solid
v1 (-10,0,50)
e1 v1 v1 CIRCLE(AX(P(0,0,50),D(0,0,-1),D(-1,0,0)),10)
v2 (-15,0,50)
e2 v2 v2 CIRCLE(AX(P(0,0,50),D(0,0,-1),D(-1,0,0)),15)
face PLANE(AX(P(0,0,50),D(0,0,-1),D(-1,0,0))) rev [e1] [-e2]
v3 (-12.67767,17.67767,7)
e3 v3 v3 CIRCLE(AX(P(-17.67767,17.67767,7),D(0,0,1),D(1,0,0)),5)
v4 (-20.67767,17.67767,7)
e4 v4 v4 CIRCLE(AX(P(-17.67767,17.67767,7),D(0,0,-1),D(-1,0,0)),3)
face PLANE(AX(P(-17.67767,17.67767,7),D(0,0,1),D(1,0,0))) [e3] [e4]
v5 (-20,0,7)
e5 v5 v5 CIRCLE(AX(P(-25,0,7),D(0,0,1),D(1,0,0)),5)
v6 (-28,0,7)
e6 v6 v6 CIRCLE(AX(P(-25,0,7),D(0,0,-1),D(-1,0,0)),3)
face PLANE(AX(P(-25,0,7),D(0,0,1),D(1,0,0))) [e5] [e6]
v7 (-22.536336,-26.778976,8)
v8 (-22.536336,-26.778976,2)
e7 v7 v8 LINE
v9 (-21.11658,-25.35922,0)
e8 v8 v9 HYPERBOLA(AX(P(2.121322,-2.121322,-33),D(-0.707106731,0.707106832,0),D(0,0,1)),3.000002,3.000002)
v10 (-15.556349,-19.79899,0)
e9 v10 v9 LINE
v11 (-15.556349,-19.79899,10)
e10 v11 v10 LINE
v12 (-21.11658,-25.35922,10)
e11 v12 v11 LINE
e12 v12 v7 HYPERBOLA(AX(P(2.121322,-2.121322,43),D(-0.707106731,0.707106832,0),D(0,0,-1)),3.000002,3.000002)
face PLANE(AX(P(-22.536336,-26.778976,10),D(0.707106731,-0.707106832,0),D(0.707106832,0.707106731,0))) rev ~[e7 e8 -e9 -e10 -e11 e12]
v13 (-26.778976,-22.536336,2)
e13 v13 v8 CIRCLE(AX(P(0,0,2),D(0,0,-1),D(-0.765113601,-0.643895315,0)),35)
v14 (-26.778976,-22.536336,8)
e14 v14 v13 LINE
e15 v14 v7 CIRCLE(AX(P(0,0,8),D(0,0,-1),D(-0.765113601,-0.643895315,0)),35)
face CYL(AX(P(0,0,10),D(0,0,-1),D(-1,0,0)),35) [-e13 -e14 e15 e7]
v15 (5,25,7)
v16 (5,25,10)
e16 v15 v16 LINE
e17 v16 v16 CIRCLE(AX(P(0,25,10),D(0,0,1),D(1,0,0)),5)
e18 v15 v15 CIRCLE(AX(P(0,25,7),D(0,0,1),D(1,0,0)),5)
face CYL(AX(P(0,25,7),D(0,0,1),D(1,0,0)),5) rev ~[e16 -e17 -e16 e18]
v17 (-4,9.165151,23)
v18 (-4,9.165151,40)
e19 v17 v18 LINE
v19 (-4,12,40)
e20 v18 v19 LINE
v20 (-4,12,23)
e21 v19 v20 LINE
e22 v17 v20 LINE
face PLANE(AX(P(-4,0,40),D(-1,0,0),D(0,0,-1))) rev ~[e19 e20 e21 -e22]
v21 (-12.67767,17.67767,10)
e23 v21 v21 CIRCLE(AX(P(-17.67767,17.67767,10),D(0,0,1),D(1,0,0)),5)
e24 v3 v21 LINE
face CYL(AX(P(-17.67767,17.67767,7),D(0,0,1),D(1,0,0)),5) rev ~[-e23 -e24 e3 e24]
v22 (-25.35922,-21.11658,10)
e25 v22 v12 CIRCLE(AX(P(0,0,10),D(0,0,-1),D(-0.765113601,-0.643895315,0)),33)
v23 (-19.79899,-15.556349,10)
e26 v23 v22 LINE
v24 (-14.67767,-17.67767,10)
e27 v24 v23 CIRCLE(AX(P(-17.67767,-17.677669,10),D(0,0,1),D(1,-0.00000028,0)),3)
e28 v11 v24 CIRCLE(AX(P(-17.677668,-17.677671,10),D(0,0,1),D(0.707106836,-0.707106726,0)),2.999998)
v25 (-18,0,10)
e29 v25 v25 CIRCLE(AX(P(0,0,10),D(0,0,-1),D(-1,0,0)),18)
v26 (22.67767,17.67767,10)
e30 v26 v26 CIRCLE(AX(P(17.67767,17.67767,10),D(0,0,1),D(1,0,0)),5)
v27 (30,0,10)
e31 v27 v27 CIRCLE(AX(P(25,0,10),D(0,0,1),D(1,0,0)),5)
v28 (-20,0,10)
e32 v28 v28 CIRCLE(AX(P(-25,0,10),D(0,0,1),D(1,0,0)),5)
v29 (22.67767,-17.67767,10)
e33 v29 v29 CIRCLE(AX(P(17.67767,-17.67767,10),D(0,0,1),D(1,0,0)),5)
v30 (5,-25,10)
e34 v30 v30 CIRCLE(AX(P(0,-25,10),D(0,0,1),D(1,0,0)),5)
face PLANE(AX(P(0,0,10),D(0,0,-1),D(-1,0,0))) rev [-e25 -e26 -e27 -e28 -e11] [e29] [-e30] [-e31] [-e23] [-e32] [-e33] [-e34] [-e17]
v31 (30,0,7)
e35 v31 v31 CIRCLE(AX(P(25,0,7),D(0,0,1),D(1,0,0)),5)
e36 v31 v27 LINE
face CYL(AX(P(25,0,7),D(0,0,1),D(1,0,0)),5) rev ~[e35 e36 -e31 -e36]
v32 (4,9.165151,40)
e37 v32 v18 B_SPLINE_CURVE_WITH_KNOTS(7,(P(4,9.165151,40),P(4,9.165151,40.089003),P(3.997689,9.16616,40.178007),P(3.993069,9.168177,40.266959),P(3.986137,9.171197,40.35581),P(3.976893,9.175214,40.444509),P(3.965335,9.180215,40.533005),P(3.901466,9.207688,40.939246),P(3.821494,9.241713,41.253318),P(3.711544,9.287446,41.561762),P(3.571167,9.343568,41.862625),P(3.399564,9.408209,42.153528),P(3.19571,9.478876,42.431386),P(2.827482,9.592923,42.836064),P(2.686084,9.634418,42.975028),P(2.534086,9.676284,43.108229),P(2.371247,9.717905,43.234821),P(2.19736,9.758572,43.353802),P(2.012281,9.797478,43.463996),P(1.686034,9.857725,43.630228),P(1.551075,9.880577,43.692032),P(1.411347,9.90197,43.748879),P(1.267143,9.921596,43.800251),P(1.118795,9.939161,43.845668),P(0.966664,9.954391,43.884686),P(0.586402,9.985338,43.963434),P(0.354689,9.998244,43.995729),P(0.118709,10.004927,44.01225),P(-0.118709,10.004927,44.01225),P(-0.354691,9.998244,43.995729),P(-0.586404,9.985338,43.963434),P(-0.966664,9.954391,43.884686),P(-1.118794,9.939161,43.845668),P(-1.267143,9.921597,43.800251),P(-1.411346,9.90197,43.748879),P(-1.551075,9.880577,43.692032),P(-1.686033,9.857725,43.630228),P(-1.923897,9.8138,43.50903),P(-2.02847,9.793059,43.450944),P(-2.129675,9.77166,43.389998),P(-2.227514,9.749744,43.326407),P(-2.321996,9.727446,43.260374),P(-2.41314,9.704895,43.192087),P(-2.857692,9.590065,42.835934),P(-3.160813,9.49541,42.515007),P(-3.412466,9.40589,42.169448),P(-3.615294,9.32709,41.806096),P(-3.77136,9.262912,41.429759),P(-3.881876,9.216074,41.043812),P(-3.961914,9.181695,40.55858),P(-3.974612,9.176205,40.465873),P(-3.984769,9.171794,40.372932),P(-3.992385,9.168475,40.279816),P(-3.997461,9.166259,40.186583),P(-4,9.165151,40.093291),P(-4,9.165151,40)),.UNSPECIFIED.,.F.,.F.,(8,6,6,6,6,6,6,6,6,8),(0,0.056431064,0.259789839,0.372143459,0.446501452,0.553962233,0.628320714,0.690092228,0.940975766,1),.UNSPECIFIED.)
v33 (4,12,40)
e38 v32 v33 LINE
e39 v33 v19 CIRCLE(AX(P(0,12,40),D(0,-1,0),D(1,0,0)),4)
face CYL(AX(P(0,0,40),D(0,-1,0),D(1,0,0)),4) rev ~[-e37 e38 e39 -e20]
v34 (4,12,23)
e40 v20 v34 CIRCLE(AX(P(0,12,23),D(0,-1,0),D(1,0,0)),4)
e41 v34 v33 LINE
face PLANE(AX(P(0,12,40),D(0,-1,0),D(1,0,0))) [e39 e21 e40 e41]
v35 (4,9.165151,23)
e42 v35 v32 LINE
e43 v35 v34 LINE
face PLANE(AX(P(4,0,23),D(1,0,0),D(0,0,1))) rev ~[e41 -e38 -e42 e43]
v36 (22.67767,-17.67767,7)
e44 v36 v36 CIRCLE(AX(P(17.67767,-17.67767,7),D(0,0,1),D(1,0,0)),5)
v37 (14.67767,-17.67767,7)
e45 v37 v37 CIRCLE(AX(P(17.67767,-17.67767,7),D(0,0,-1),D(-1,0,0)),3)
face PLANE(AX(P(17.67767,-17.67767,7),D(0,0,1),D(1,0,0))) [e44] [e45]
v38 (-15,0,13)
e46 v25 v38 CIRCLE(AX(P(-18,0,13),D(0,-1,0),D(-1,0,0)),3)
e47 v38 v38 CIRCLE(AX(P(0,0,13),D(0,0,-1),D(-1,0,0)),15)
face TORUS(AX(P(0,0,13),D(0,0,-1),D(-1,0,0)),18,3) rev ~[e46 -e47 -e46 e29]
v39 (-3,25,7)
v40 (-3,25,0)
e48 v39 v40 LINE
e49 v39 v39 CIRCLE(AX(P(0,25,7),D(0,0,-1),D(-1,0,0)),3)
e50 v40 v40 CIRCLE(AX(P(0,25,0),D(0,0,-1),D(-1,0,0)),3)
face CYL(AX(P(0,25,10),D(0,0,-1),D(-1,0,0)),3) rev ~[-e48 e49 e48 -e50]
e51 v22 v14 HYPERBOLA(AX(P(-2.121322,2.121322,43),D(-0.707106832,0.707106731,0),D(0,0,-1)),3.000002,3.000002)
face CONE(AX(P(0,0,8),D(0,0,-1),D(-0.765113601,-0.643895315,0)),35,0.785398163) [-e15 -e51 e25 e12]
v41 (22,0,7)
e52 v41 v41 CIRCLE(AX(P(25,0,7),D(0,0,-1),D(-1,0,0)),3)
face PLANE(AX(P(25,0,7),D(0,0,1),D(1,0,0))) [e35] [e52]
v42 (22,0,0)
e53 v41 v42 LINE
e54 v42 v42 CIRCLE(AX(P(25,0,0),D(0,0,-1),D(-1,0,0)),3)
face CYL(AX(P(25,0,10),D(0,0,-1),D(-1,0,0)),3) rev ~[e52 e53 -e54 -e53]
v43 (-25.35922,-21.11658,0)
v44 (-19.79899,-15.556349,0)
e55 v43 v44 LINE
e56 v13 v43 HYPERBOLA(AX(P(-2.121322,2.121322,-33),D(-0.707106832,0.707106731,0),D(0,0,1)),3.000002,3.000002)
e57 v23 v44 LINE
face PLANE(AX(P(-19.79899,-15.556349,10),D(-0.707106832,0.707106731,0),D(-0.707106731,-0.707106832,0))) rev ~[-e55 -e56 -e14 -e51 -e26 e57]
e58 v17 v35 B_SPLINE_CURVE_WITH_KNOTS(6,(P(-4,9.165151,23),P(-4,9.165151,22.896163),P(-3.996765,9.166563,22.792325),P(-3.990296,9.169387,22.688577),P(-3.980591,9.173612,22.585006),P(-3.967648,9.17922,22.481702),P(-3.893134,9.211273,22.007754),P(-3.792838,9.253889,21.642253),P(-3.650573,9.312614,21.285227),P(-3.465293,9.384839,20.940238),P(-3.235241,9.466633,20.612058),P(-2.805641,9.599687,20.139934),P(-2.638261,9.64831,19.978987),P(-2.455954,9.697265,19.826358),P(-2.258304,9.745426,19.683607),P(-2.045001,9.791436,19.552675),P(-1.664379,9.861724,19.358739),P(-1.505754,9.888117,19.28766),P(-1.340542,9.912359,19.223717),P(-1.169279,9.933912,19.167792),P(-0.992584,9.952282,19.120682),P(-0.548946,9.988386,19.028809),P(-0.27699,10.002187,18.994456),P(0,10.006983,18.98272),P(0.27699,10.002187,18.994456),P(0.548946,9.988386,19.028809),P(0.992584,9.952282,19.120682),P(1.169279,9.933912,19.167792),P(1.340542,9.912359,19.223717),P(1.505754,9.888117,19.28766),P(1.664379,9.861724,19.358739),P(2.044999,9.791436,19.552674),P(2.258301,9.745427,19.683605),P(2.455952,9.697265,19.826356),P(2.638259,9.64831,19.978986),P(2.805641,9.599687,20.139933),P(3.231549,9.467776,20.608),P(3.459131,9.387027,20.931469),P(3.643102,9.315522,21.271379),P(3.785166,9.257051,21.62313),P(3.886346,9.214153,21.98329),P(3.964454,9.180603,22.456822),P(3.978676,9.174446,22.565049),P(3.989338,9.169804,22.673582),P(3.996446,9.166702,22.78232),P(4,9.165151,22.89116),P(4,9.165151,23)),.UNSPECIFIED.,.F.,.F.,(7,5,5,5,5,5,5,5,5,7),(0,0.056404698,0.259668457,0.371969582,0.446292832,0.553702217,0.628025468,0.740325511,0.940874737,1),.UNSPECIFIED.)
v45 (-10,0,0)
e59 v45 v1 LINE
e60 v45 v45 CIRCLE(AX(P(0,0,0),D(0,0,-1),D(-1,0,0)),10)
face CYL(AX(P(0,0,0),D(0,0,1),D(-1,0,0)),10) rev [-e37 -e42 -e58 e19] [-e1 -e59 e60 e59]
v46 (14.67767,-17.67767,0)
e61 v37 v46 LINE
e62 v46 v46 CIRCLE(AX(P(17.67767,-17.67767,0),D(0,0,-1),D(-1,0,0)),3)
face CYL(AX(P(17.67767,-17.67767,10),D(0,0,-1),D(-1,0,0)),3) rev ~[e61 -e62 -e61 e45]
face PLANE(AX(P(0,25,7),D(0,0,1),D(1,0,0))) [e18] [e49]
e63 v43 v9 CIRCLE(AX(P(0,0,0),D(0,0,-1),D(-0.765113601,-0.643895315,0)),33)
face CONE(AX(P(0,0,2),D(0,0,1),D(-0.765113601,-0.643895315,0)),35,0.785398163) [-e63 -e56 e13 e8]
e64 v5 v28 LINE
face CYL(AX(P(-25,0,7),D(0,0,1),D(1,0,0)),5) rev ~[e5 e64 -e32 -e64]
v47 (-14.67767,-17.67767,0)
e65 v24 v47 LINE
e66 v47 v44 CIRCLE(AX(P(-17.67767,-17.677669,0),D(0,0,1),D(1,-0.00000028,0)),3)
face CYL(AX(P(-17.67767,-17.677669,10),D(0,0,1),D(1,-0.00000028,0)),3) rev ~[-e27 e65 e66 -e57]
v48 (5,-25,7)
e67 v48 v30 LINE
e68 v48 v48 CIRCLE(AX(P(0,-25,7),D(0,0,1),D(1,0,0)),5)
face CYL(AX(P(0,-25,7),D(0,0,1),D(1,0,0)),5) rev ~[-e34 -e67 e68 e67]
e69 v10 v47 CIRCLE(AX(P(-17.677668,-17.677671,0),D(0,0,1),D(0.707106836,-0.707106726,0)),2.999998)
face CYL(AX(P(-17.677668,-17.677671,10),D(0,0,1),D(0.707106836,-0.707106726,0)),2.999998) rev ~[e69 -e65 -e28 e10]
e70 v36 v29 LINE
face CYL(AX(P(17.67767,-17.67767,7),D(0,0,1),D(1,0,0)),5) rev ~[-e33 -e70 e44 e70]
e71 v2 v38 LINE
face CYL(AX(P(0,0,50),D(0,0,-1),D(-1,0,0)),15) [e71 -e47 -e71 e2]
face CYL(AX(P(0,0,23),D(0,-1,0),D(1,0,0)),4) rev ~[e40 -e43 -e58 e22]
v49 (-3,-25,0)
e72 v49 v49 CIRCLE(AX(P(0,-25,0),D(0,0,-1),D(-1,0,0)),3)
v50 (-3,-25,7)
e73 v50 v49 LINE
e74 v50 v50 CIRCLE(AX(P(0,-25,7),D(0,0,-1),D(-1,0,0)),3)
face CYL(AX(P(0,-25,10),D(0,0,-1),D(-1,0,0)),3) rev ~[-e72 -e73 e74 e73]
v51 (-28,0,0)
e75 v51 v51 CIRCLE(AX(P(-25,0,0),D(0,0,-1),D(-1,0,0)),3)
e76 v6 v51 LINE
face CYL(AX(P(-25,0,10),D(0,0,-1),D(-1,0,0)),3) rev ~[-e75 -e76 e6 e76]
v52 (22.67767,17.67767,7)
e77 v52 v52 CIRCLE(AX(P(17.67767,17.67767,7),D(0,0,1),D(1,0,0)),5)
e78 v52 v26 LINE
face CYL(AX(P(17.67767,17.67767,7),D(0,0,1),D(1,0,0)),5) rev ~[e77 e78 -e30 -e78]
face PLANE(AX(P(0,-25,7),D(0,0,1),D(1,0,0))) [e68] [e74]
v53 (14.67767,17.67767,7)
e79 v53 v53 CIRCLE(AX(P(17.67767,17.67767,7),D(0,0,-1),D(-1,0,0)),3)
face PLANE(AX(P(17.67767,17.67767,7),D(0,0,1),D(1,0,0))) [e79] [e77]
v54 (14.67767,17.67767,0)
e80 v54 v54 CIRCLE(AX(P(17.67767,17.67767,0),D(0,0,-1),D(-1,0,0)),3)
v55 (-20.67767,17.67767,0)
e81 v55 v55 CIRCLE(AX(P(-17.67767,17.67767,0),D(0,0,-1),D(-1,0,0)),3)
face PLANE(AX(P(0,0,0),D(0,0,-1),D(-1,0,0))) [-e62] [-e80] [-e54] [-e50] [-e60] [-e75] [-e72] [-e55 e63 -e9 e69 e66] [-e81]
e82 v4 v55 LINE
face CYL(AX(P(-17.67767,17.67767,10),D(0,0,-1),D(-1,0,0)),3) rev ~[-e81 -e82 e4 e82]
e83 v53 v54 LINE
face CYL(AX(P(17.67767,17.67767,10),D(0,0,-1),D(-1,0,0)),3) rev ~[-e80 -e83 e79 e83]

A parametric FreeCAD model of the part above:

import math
import FreeCAD as App
import Part
import Sketcher
Q = App.Units.Quantity


def edges_at(feature, points):
    """Names of the edges that pass closest to the given points."""
    edges = feature.Shape.Edges
    near = lambda p: min(range(len(edges)), key=lambda i: edges[i].distToShape(Part.Vertex(*p))[0])
    return sorted({f"Edge{near(p) + 1}" for p in points})


def add_polygon(sketch, points):
    """Adds a closed chain of lines whose ends are joined by coincident constraints."""
    first, n = sketch.GeometryCount, len(points)
    for a, b in zip(points, points[1:] + points[:1]):
        sketch.addGeometry(Part.LineSegment(App.Vector(*a, 0), App.Vector(*b, 0)), False)
    for i in range(n):
        sketch.addConstraint(Sketcher.Constraint("Coincident", first + i, 2, first + (i + 1) % n, 1))

doc = App.newDocument("Part")
body = doc.addObject("PartDesign::Body", "Body")

sketch1 = body.newObject("Sketcher::SketchObject", "Sketch")
sketch1.AttachmentSupport = (doc.getObject("XZ_Plane"), [""])
sketch1.MapMode = "FlatFace"
add_polygon(sketch1, [(-35, 0), (-10, 0), (-10, 50), (-15, 50), (-15, 10), (-35, 10)])
sketch1.addConstraint(Sketcher.Constraint("Horizontal", 0))
sketch1.addConstraint(Sketcher.Constraint("Vertical", 1))
sketch1.addConstraint(Sketcher.Constraint("Horizontal", 2))
sketch1.addConstraint(Sketcher.Constraint("Vertical", 3))
sketch1.addConstraint(Sketcher.Constraint("Horizontal", 4))
sketch1.addConstraint(Sketcher.Constraint("Vertical", 5))
sketch1.addConstraint(Sketcher.Constraint("PointOnObject", 0, 2, -1))
sketch1.addConstraint(Sketcher.Constraint("DistanceX", 0, 1, 0, 2, Q("25 mm")))
sketch1.addConstraint(Sketcher.Constraint("DistanceX", 2, 2, 2, 1, Q("5 mm")))
sketch1.addConstraint(Sketcher.Constraint("DistanceY", 1, 1, 1, 2, Q("50 mm")))
sketch1.addConstraint(Sketcher.Constraint("DistanceY", 3, 2, 3, 1, Q("40 mm")))
sketch1.addConstraint(Sketcher.Constraint("DistanceX", 0, 2, -1, 1, Q("10 mm")))
revolution = body.newObject("PartDesign::Revolution", "Revolution")
revolution.Profile = sketch1
revolution.ReferenceAxis = (sketch1, ["V_Axis"])
revolution.Angle = 360

sketch2 = body.newObject("Sketcher::SketchObject", "Sketch001")
sketch2.AttachmentSupport = (doc.getObject("XY_Plane"), [""])
sketch2.MapMode = "FlatFace"
sketch2.AttachmentOffset = App.Placement(App.Vector(0, 0, 10), App.Rotation())
sketch2.addGeometry(Part.Circle(App.Vector(-17.7, 17.7, 0), App.Vector(0, 0, 1), 3), False)
sketch2.addGeometry(Part.Circle(App.Vector(0, 25, 0), App.Vector(0, 0, 1), 3), False)
sketch2.addGeometry(Part.Circle(App.Vector(17.7, 17.7, 0), App.Vector(0, 0, 1), 3), False)
sketch2.addGeometry(Part.Circle(App.Vector(25, 0, 0), App.Vector(0, 0, 1), 3), False)
sketch2.addGeometry(Part.Circle(App.Vector(0, -25, 0), App.Vector(0, 0, 1), 3), False)
sketch2.addGeometry(Part.Circle(App.Vector(-25, 0, 0), App.Vector(0, 0, 1), 3), False)
sketch2.addGeometry(Part.Circle(App.Vector(17.7, -17.7, 0), App.Vector(0, 0, 1), 3), False)
sketch2.addConstraint(Sketcher.Constraint("Equal", 0, 1))
sketch2.addConstraint(Sketcher.Constraint("Equal", 1, 2))
sketch2.addConstraint(Sketcher.Constraint("Equal", 2, 3))
sketch2.addConstraint(Sketcher.Constraint("Equal", 3, 4))
sketch2.addConstraint(Sketcher.Constraint("Equal", 4, 5))
sketch2.addConstraint(Sketcher.Constraint("Equal", 5, 6))
sketch2.addConstraint(Sketcher.Constraint("Symmetric", 1, 3, 4, 3, -1, 1))
sketch2.addConstraint(Sketcher.Constraint("Symmetric", 3, 3, 5, 3, -1, 1))
sketch2.addConstraint(Sketcher.Constraint("Symmetric", 0, 3, 6, 3, -1, 1))
sketch2.addConstraint(Sketcher.Constraint("Symmetric", 0, 3, 2, 3, -2))
sketch2.addConstraint(Sketcher.Constraint("PointOnObject", 1, 3, -2))
sketch2.addConstraint(Sketcher.Constraint("PointOnObject", 3, 3, -1))
sketch2.addConstraint(Sketcher.Constraint("Diameter", 0, Q("6 mm")))
sketch2.addConstraint(Sketcher.Constraint("DistanceY", -1, 1, 1, 3, Q("25 mm")))
sketch2.addConstraint(Sketcher.Constraint("DistanceX", -1, 1, 3, 3, Q("25 mm")))
sketch2.addConstraint(Sketcher.Constraint("DistanceX", 0, 3, -1, 1, Q("17.67767 mm")))
sketch2.addConstraint(Sketcher.Constraint("DistanceY", -1, 1, 0, 3, Q("17.67767 mm")))
doc.recompute()
hole = body.newObject("PartDesign::Hole", "Hole")
hole.Profile = sketch2
hole.ThreadType = "None"
hole.Diameter = 6
hole.DepthType = "ThroughAll"
hole.HoleCutType = "Counterbore"
hole.HoleCutDiameter = 10
hole.HoleCutDepth = 3

sketch3 = body.newObject("Sketcher::SketchObject", "Sketch002")
sketch3.AttachmentSupport = (doc.getObject("XY_Plane"), [""])
sketch3.MapMode = "FlatFace"
sketch3.AttachmentOffset = App.Placement(App.Vector(0, 0, 10), App.Rotation())
sketch3.addGeometry(Part.LineSegment(App.Vector(-19.8, -15.6, 0), App.Vector(-26.8, -22.5, 0)), False)
sketch3.addGeometry(Part.ArcOfCircle(Part.Circle(App.Vector(0, 0, 0), App.Vector(0, 0, 1), 35), math.radians(-139.92), math.radians(-130.08)), False)
sketch3.addGeometry(Part.LineSegment(App.Vector(-22.5, -26.8, 0), App.Vector(-15.6, -19.8, 0)), False)
sketch3.addGeometry(Part.ArcOfCircle(Part.Circle(App.Vector(-17.7, -17.7, 0), App.Vector(0, 0, 1), 3), math.radians(-45), math.radians(0)), False)
sketch3.addGeometry(Part.ArcOfCircle(Part.Circle(App.Vector(-17.7, -17.7, 0), App.Vector(0, 0, 1), 3), math.radians(0), math.radians(135)), False)
sketch3.addConstraint(Sketcher.Constraint("Coincident", 0, 2, 1, 1))
sketch3.addConstraint(Sketcher.Constraint("Coincident", 1, 2, 2, 1))
sketch3.addConstraint(Sketcher.Constraint("Tangent", 2, 2, 3, 1))
sketch3.addConstraint(Sketcher.Constraint("Tangent", 3, 2, 4, 1))
sketch3.addConstraint(Sketcher.Constraint("Tangent", 4, 2, 0, 1))
sketch3.addConstraint(Sketcher.Constraint("Equal", 3, 4))
sketch3.addConstraint(Sketcher.Constraint("Parallel", 0, 2))
sketch3.addConstraint(Sketcher.Constraint("Horizontal", 4, 3, 3, 2))
sketch3.addConstraint(Sketcher.Constraint("Equal", 0, 2))
sketch3.addConstraint(Sketcher.Constraint("Radius", 3, Q("2.999998 mm")))
sketch3.addConstraint(Sketcher.Constraint("Angle", 0, Q("-134.999996 deg")))
sketch3.addConstraint(Sketcher.Constraint("Radius", 1, Q("35.000115 mm")))
sketch3.addConstraint(Sketcher.Constraint("Distance", 0, Q("9.871192 mm")))
sketch3.addConstraint(Sketcher.Constraint("DistanceX", 3, 3, -1, 1, Q("17.677668 mm")))
sketch3.addConstraint(Sketcher.Constraint("DistanceY", 3, 3, -1, 1, Q("17.677671 mm")))
pocket1 = body.newObject("PartDesign::Pocket", "Pocket")
pocket1.Profile = sketch3
pocket1.Type = "ThroughAll"

sketch4 = body.newObject("Sketcher::SketchObject", "Sketch003")
sketch4.AttachmentSupport = (doc.getObject("XZ_Plane"), [""])
sketch4.MapMode = "FlatFace"
sketch4.addGeometry(Part.ArcOfCircle(Part.Circle(App.Vector(0, 40, 0), App.Vector(0, 0, 1), 4), math.radians(0), math.radians(180)), False)
sketch4.addGeometry(Part.LineSegment(App.Vector(-4, 40, 0), App.Vector(-4, 23, 0)), False)
sketch4.addGeometry(Part.ArcOfCircle(Part.Circle(App.Vector(0, 23, 0), App.Vector(0, 0, 1), 4), math.radians(180), math.radians(360)), False)
sketch4.addGeometry(Part.LineSegment(App.Vector(4, 23, 0), App.Vector(4, 40, 0)), False)
sketch4.addConstraint(Sketcher.Constraint("Tangent", 0, 2, 1, 1))
sketch4.addConstraint(Sketcher.Constraint("Tangent", 1, 2, 2, 1))
sketch4.addConstraint(Sketcher.Constraint("Tangent", 2, 2, 3, 1))
sketch4.addConstraint(Sketcher.Constraint("Tangent", 3, 2, 0, 1))
sketch4.addConstraint(Sketcher.Constraint("Vertical", 1))
sketch4.addConstraint(Sketcher.Constraint("Vertical", 3))
sketch4.addConstraint(Sketcher.Constraint("PointOnObject", 0, 3, -2))
sketch4.addConstraint(Sketcher.Constraint("Radius", 0, Q("4 mm")))
sketch4.addConstraint(Sketcher.Constraint("DistanceY", 1, 2, 1, 1, Q("17 mm")))
sketch4.addConstraint(Sketcher.Constraint("DistanceY", -1, 1, 0, 3, Q("40 mm")))
pocket2 = body.newObject("PartDesign::Pocket", "Pocket001")
pocket2.Profile = sketch4
pocket2.Length = 12
doc.recompute()

fillet = body.newObject("PartDesign::Fillet", "Fillet")
fillet.Base = (pocket2, edges_at(pocket2, [(15, 0, 10)]))
fillet.Radius = 3
doc.recompute()

chamfer = body.newObject("PartDesign::Chamfer", "Chamfer")
chamfer.Base = (fillet, edges_at(fillet, [(24.749, 24.749, 10), (24.749, 24.749, 0)]))
chamfer.Size = 2

doc.recompute()
